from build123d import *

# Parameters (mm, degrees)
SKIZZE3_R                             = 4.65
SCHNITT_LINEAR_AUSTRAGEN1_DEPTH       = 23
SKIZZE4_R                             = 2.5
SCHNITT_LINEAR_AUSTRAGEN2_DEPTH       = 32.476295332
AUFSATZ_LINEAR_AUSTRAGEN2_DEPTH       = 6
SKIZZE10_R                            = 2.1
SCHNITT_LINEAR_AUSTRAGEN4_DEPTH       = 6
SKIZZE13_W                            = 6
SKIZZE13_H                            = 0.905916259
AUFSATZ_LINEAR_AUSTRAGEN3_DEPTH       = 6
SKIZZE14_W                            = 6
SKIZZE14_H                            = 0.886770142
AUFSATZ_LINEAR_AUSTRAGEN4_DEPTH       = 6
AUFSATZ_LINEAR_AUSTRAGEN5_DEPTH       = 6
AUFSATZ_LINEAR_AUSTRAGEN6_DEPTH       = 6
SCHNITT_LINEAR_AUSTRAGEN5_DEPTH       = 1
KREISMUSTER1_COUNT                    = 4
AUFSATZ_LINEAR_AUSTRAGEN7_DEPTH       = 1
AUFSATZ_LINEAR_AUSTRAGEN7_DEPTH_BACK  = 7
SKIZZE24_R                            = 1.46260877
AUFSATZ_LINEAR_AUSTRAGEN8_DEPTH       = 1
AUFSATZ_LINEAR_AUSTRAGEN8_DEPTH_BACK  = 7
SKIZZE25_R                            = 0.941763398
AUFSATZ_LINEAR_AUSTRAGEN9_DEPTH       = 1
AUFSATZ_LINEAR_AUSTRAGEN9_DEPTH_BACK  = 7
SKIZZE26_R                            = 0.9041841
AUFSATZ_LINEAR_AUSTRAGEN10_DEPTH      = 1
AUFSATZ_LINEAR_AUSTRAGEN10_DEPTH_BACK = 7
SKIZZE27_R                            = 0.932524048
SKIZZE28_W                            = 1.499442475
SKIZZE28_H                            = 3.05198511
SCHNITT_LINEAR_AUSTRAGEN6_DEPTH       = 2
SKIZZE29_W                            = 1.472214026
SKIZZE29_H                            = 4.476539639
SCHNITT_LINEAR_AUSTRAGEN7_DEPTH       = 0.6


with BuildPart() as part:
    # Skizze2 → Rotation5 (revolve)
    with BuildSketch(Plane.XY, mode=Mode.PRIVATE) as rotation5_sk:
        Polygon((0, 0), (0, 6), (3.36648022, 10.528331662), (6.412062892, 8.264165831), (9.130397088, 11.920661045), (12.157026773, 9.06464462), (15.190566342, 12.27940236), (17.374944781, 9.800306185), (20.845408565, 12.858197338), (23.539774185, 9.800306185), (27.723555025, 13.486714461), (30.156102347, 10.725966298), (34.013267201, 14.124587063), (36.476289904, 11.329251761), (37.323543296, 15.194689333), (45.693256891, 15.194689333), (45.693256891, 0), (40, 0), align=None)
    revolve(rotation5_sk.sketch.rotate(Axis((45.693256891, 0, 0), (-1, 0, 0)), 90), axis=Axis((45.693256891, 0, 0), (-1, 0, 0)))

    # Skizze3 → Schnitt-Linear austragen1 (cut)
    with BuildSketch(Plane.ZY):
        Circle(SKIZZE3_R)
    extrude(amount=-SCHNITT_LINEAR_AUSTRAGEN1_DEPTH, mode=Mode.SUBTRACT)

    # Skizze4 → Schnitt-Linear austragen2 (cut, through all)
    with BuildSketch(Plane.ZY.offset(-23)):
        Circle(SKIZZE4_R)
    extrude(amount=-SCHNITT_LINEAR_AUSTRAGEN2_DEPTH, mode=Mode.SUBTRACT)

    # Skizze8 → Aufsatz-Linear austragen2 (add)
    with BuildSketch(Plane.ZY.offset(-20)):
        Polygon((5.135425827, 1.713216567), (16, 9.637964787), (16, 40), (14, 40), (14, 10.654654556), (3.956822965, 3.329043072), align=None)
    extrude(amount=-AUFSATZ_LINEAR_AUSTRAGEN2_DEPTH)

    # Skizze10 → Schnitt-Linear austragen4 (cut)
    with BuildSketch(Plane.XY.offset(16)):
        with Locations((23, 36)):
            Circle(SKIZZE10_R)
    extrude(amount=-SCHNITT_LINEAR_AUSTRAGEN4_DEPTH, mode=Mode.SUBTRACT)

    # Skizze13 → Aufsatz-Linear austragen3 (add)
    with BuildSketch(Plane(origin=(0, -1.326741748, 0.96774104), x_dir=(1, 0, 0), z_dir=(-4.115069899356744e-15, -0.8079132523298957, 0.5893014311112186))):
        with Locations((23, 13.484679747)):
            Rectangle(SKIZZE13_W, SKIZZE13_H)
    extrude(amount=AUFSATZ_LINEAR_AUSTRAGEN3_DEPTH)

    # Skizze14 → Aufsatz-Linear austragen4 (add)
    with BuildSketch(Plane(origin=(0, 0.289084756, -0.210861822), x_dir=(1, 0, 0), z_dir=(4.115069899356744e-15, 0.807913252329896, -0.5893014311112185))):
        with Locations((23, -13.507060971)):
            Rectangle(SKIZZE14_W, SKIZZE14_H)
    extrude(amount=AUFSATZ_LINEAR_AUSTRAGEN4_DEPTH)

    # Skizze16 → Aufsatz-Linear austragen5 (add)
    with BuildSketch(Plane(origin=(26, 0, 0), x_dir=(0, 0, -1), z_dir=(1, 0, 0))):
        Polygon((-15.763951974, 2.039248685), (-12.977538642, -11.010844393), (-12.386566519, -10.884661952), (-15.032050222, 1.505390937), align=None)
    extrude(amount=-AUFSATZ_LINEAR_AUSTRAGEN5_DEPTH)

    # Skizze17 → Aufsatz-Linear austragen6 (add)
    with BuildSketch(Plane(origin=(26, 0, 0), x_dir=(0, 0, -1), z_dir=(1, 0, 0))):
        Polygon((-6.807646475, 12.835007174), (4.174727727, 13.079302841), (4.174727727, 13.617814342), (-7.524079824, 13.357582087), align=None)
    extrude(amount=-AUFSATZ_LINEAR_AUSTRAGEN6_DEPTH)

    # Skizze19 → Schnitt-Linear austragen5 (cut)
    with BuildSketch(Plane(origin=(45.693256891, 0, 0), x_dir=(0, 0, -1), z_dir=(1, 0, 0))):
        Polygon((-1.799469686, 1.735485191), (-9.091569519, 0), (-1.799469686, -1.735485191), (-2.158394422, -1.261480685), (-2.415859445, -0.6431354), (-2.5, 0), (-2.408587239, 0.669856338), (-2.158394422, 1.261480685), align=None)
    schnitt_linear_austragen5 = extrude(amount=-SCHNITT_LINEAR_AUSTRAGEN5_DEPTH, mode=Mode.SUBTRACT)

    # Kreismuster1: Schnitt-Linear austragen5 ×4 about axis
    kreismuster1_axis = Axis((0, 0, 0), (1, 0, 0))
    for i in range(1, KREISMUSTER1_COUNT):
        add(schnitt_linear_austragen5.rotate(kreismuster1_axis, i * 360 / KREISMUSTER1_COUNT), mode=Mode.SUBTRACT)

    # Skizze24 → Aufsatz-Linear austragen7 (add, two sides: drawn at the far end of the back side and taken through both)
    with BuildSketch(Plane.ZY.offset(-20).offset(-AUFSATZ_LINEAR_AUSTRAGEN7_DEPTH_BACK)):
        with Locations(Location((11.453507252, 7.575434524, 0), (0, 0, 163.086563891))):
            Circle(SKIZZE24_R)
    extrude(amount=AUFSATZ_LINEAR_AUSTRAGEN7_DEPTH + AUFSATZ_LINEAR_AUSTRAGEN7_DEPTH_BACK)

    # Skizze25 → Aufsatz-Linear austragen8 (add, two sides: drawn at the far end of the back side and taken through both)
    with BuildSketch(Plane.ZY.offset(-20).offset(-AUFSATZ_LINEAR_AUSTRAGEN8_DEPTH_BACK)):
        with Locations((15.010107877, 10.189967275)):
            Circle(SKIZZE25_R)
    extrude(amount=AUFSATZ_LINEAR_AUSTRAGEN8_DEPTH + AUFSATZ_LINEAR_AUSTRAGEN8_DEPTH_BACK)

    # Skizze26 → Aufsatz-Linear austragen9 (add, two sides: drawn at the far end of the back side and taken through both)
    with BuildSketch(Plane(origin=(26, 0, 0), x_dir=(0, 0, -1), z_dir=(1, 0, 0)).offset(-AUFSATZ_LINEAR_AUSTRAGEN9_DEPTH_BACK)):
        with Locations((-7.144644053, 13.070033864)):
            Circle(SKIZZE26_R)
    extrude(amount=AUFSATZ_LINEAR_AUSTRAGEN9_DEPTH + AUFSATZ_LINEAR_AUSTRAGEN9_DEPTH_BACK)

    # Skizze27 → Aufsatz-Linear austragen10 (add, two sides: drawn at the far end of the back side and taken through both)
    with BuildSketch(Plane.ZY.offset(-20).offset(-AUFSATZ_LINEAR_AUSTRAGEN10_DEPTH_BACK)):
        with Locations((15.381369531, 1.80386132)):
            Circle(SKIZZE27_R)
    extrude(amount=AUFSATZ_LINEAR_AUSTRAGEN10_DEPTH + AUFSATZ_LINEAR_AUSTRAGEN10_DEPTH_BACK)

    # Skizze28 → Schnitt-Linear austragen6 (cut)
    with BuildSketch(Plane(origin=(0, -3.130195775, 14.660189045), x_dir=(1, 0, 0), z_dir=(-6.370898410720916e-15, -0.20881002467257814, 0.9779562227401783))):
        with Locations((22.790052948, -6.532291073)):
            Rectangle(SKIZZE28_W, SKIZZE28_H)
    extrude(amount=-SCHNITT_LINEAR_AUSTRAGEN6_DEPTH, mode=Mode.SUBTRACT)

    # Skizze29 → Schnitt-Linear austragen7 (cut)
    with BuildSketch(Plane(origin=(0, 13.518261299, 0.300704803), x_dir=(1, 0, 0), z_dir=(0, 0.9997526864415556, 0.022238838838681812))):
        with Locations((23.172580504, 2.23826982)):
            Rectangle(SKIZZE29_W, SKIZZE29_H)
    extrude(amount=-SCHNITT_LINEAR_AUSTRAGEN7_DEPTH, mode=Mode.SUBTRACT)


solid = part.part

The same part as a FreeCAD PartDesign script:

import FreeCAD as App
import Part
import Sketcher

V = App.Vector


def add_polygon(sketch, points):
    """Adds a closed chain of lines whose ends are joined by coincident constraints."""
    first, n = sketch.GeometryCount, len(points)
    for a, b in zip(points, points[1:] + points[:1]):
        sketch.addGeometry(Part.LineSegment(App.Vector(*a, 0), App.Vector(*b, 0)), False)
    for i in range(n):
        sketch.addConstraint(Sketcher.Constraint("Coincident", first + i, 2, first + (i + 1) % n, 1))

doc = App.newDocument("Part")
body = doc.addObject("PartDesign::Body", "Body")

# Sketch on XY plane
sketch1 = doc.addObject("Sketcher::SketchObject", "Sketch")
body.addObject(sketch1)
sketch1.AttachmentSupport = (doc.XY_Plane, [""])
sketch1.MapMode = "FlatFace"
add_polygon(sketch1, [(0, 6), (0, 0), (45.7, 0), (45.7, 15.2), (37.3, 15.2), (36.5, 11.3), (34, 14.1), (30.2, 10.7), (27.7, 13.5), (23.5, 9.8), (20.8, 12.9), (17.4, 9.8), (15.2, 12.3), (12.2, 9.1), (9.1, 11.9), (6.4, 8.3), (3.4, 10.5)])  # lines 0-16
sketch1.addConstraint([
    Sketcher.Constraint("Vertical", 0),
    Sketcher.Constraint("Horizontal", 1),
    Sketcher.Constraint("Vertical", 2),
    Sketcher.Constraint("Horizontal", 3),
    Sketcher.Constraint("Coincident", 0, 2, -1, 1),
    Sketcher.Constraint("Perpendicular", 5, 6),
    Sketcher.Constraint("Perpendicular", 6, 7),
    Sketcher.Constraint("Perpendicular", 7, 8),
    Sketcher.Constraint("Perpendicular", 8, 9),
    Sketcher.Constraint("Perpendicular", 9, 10),
    Sketcher.Constraint("Perpendicular", 10, 11),
    Sketcher.Constraint("Perpendicular", 12, 13),
    Sketcher.Constraint("Perpendicular", 14, 15),
    Sketcher.Constraint("Perpendicular", 15, 16),
    Sketcher.Constraint("Horizontal", 8, 2, 10, 2),
    Sketcher.Constraint("DistanceY", 0, 2, 0, 1, 6.0),
    Sketcher.Constraint("Distance", 15, 3.794999),
    Sketcher.Constraint("Distance", 4, 3.957202),
    Sketcher.Constraint("DistanceY", 2, 1, 2, 2, 15.194689),
    Sketcher.Constraint("DistanceX", 7, 2, 2, 2, 17.969702),
    Sketcher.Constraint("Distance", 5, 3.725638),
    Sketcher.Constraint("Distance", 6, 5.14085),
    Sketcher.Constraint("Distance", 7, 3.67954),
    Sketcher.Constraint("Distance", 12, 4.420071),
    Sketcher.Constraint("Distance", 13, 4.161408),
    Sketcher.Constraint("DistanceX", 1, 1, 1, 2, 45.693257),
    Sketcher.Constraint("DistanceX", 3, 2, 3, 1, 8.369714),
    Sketcher.Constraint("DistanceX", -1, 1, 4, 2, 36.47629),
    Sketcher.Constraint("DistanceX", -1, 1, 9, 2, 20.845409),
    Sketcher.Constraint("DistanceY", -1, 1, 13, 2, 11.920661),
    Sketcher.Constraint("DistanceX", -1, 1, 15, 2, 3.36648),
    Sketcher.Constraint("DistanceY", -1, 1, 15, 2, 10.528332),
    Sketcher.Constraint("DistanceX", 8, 2, 7, 2, 4.183781),
])
revolution = doc.addObject("PartDesign::Revolution", "Revolution")
body.addObject(revolution)
revolution.Profile = sketch1
revolution.ReferenceAxis = (sketch1, ["H_Axis"])
revolution.Angle = 360

# Sketch on YZ plane
sketch2 = doc.addObject("Sketcher::SketchObject", "Sketch001")
body.addObject(sketch2)
sketch2.AttachmentSupport = (doc.YZ_Plane, [""])
sketch2.MapMode = "FlatFace"
sketch2.addGeometry(Part.Circle(V(0, 0, 0), V(0, 0, 1), 4.7), False)
sketch2.addConstraint([
    Sketcher.Constraint("Coincident", 0, 3, -1, 1),
    Sketcher.Constraint("Diameter", 0, 9.3),
])
pocket1 = doc.addObject("PartDesign::Pocket", "Pocket")
body.addObject(pocket1)
pocket1.Profile = sketch2
pocket1.Length = 23
pocket1.Reversed = True

# Sketch on YZ plane
sketch3 = doc.addObject("Sketcher::SketchObject", "Sketch002")
body.addObject(sketch3)
sketch3.AttachmentSupport = (doc.YZ_Plane, [""])
sketch3.MapMode = "FlatFace"
sketch3.AttachmentOffset = App.Placement(V(0, 0, 23), App.Rotation())
sketch3.addGeometry(Part.Circle(V(0, 0, 0), V(0, 0, 1), 2.5), False)
sketch3.addConstraint([
    Sketcher.Constraint("Coincident", 0, 3, -1, 1),
    Sketcher.Constraint("Diameter", 0, 5.0),
])
pocket2 = doc.addObject("PartDesign::Pocket", "Pocket001")
body.addObject(pocket2)
pocket2.Profile = sketch3
pocket2.Type = "ThroughAll"
pocket2.Reversed = True

# Sketch on YZ plane
sketch4 = doc.addObject("Sketcher::SketchObject", "Sketch003")
body.addObject(sketch4)
sketch4.AttachmentSupport = (doc.YZ_Plane, [""])
sketch4.MapMode = "FlatFace"
sketch4.AttachmentOffset = App.Placement(V(0, 0, 20), App.Rotation())
add_polygon(sketch4, [(1.7, 5.1), (9.6, 16), (40, 16), (40, 14), (10.7, 14), (3.3, 4)])  # lines 0-5
sketch4.addConstraint([
    Sketcher.Constraint("Horizontal", 1),
    Sketcher.Constraint("Vertical", 2),
    Sketcher.Constraint("Horizontal", 3),
    Sketcher.Constraint("Parallel", 0, 4),
    Sketcher.Constraint("Perpendicular", 4, 5),
    Sketcher.Constraint("DistanceY", 2, 2, 2, 1, 2.0),
    Sketcher.Constraint("Distance", 5, 2.0),
    Sketcher.Constraint("DistanceY", -1, 1, 0, 2, 16.0),
    Sketcher.Constraint("DistanceX", -1, 1, 1, 2, 40.0),
    Sketcher.Constraint("Distance", 0, 13.447699),
    Sketcher.Constraint("Distance", 4, 12.431009),
    Sketcher.Constraint("DistanceX", 1, 1, 1, 2, 30.362035),
])
pad1 = doc.addObject("PartDesign::Pad", "Pad")
body.addObject(pad1)
pad1.Profile = sketch4
pad1.Length = 6

# Sketch on XY plane
sketch5 = doc.addObject("Sketcher::SketchObject", "Sketch004")
body.addObject(sketch5)
sketch5.AttachmentSupport = (doc.XY_Plane, [""])
sketch5.MapMode = "FlatFace"
sketch5.AttachmentOffset = App.Placement(V(0, 0, 16), App.Rotation())
sketch5.addGeometry(Part.Circle(V(23, 36, 0), V(0, 0, 1), 2.1), False)
sketch5.addConstraint([
    Sketcher.Constraint("Diameter", 0, 4.2),
    Sketcher.Constraint("DistanceX", -1, 1, 0, 3, 23.0),
    Sketcher.Constraint("DistanceY", -1, 1, 0, 3, 36.0),
])
pocket3 = doc.addObject("PartDesign::Pocket", "Pocket002")
body.addObject(pocket3)
pocket3.Profile = sketch5
pocket3.Length = 6

# Sketch on an angled plane
sketch6 = doc.addObject("Sketcher::SketchObject", "Sketch005")
body.addObject(sketch6)
sketch6.Placement = App.Placement(V(0, -1.326742, 0.967741), App.Rotation(V(1, 0, 0), V(0, 0.589301431, 0.807913252), V(0, -0.807913252, 0.589301431), "ZXY"))
add_polygon(sketch6, [(20, 13.9), (20, 13), (26, 13), (26, 13.9)])  # lines 0-3
sketch6.addConstraint([
    Sketcher.Constraint("Vertical", 0),
    Sketcher.Constraint("Horizontal", 1),
    Sketcher.Constraint("Vertical", 2),
    Sketcher.Constraint("Horizontal", 3),
    Sketcher.Constraint("DistanceX", 1, 1, 1, 2, 6.0),
    Sketcher.Constraint("DistanceX", -1, 1, 0, 2, 20.0),
    Sketcher.Constraint("DistanceY", 0, 2, 0, 1, 0.905916),
    Sketcher.Constraint("DistanceY", -1, 1, 0, 2, 13.031722),
])
pad2 = doc.addObject("PartDesign::Pad", "Pad001")
body.addObject(pad2)
pad2.Profile = sketch6
pad2.Length = 6

# Sketch on an angled plane
sketch7 = doc.addObject("Sketcher::SketchObject", "Sketch006")
body.addObject(sketch7)
sketch7.Placement = App.Placement(V(0, 0.289085, -0.210862), App.Rotation(V(1, 0, 0), V(0, -0.589301431, -0.807913252), V(0, 0.807913252, -0.589301431), "ZXY"))
add_polygon(sketch7, [(20, -13.1), (20, -14), (26, -14), (26, -13.1)])  # lines 0-3
sketch7.addConstraint([
    Sketcher.Constraint("Vertical", 0),
    Sketcher.Constraint("Horizontal", 1),
    Sketcher.Constraint("Vertical", 2),
    Sketcher.Constraint("Horizontal", 3),
    Sketcher.Constraint("DistanceX", 1, 1, 1, 2, 6.0),
    Sketcher.Constraint("DistanceX", -1, 1, 0, 2, 20.0),
    Sketcher.Constraint("DistanceY", 0, 2, 0, 1, 0.88677),
    Sketcher.Constraint("DistanceY", 0, 2, -1, 1, 13.950446),
])
pad3 = doc.addObject("PartDesign::Pad", "Pad002")
body.addObject(pad3)
pad3.Profile = sketch7
pad3.Length = 6

# Sketch on YZ plane
sketch8 = doc.addObject("Sketcher::SketchObject", "Sketch007")
body.addObject(sketch8)
sketch8.AttachmentSupport = (doc.YZ_Plane, [""])
sketch8.MapMode = "FlatFace"
sketch8.AttachmentOffset = App.Placement(V(0, 0, 26), App.Rotation())
add_polygon(sketch8, [(2, 15.8), (-11, 13), (-10.9, 12.4), (1.5, 15)])  # lines 0-3
sketch8.addConstraint([
    Sketcher.Constraint("Perpendicular", 0, 1),
    Sketcher.Constraint("Perpendicular", 1, 2),
    Sketcher.Constraint("DistanceY", 2, 2, 3, 2, 0.731902),
    Sketcher.Constraint("Distance", 0, 13.344251),
    Sketcher.Constraint("DistanceY", -1, 1, 0, 2, 12.977539),
    Sketcher.Constraint("DistanceX", 1, 2, -1, 1, 10.884662),
    Sketcher.Constraint("DistanceX", -1, 1, 2, 2, 1.505391),
    Sketcher.Constraint("DistanceY", -1, 1, 2, 2, 15.03205),
])
pad4 = doc.addObject("PartDesign::Pad", "Pad003")
body.addObject(pad4)
pad4.Profile = sketch8
pad4.Length = 6
pad4.Reversed = True

# Sketch on YZ plane
sketch9 = doc.addObject("Sketcher::SketchObject", "Sketch008")
body.addObject(sketch9)
sketch9.AttachmentSupport = (doc.YZ_Plane, [""])
sketch9.MapMode = "FlatFace"
sketch9.AttachmentOffset = App.Placement(V(0, 0, 26), App.Rotation())
add_polygon(sketch9, [(12.835007, 6.807646), (13.079303, -4.174728), (13.617814, -4.174728), (13.357582, 7.52408)])  # lines 0-3
sketch9.addConstraint([
    Sketcher.Constraint("Horizontal", 1),
    Sketcher.Constraint("Parallel", 0, 2),
    Sketcher.Constraint("Distance", 2, 11.701702),
    Sketcher.Constraint("DistanceX", 1, 1, 1, 2, 0.538512),
    Sketcher.Constraint("Distance", 0, 10.985091),
    Sketcher.Constraint("Distance", 3, 0.88677),
    Sketcher.Constraint("DistanceY", -1, 1, 2, 2, 7.52408),
    Sketcher.Constraint("DistanceX", -1, 1, 0, 2, 13.079303),
])
pad5 = doc.addObject("PartDesign::Pad", "Pad004")
body.addObject(pad5)
pad5.Profile = sketch9
pad5.Length = 6
pad5.Reversed = True

# Sketch on YZ plane
sketch10 = doc.addObject("Sketcher::SketchObject", "Sketch009")
body.addObject(sketch10)
sketch10.AttachmentSupport = (doc.YZ_Plane, [""])
sketch10.MapMode = "FlatFace"
sketch10.AttachmentOffset = App.Placement(V(0, 0, 45.693257), App.Rotation())
add_polygon(sketch10, [(1.7, 1.8), (0, 9.1), (-1.7, 1.8), (-1.3, 2.2), (-0.6, 2.4), (0, 2.5), (0.7, 2.4), (1.3, 2.2)])  # lines 0-7
sketch10.addConstraint([
    Sketcher.Constraint("Symmetric", 2, 2, 6, 2, -2),
    Sketcher.Constraint("Symmetric", 1, 2, 7, 2, -2),
    Sketcher.Constraint("PointOnObject", 0, 2, -2),
    Sketcher.Constraint("PointOnObject", 4, 2, -2),
    Sketcher.Constraint("DistanceY", -1, 1, 4, 2, 2.5),
    Sketcher.Constraint("DistanceY", 1, 2, 0, 2, 7.2921),
    Sketcher.Constraint("Distance", 6, 0.642352),
    Sketcher.Constraint("DistanceY", -1, 1, 0, 2, 9.09157),
    Sketcher.Constraint("DistanceX", 2, 2, -1, 1, 1.261481),
    Sketcher.Constraint("DistanceY", -1, 1, 3, 2, 2.415859),
    Sketcher.Constraint("DistanceX", 1, 2, 3, 2, 1.09235),
    Sketcher.Constraint("DistanceX", 3, 2, 5, 2, 1.312992),
    Sketcher.Constraint("DistanceX", 5, 2, 7, 2, 1.065629),
    Sketcher.Constraint("Distance", 2, 0.594565),
])
pocket4 = doc.addObject("PartDesign::Pocket", "Pocket003")
body.addObject(pocket4)
pocket4.Profile = sketch10
pocket4.Length = 1
doc.recompute()

polarpattern = doc.addObject("PartDesign::PolarPattern", "PolarPattern")
body.addObject(polarpattern)
polarpattern.Originals = [pocket4]
polarpattern.Axis = (doc.X_Axis, [""])
polarpattern.Angle = 360
polarpattern.Occurrences = 4
body.Tip = polarpattern

# Sketch on YZ plane
sketch11 = doc.addObject("Sketcher::SketchObject", "Sketch010")
body.addObject(sketch11)
sketch11.AttachmentSupport = (doc.YZ_Plane, [""])
sketch11.MapMode = "FlatFace"
sketch11.AttachmentOffset = App.Placement(V(0, 0, 20), App.Rotation())
sketch11.addGeometry(Part.Circle(V(7.6, 11.5, 0), V(0, 0, 1), 1.5), False)
sketch11.addConstraint([
    Sketcher.Constraint("Diameter", 0, 2.925218),
    Sketcher.Constraint("DistanceX", -1, 1, 0, 3, 7.575435),
    Sketcher.Constraint("DistanceY", -1, 1, 0, 3, 11.453507),
])
pad6 = doc.addObject("PartDesign::Pad", "Pad005")
body.addObject(pad6)
pad6.Profile = sketch11
pad6.Type = "TwoLengths"
pad6.Length = 1
pad6.Length2 = 7
pad6.Reversed = True

# Sketch on YZ plane
sketch12 = doc.addObject("Sketcher::SketchObject", "Sketch011")
body.addObject(sketch12)
sketch12.AttachmentSupport = (doc.YZ_Plane, [""])
sketch12.MapMode = "FlatFace"
sketch12.AttachmentOffset = App.Placement(V(0, 0, 20), App.Rotation())
sketch12.addGeometry(Part.Circle(V(10.2, 15, 0), V(0, 0, 1), 0.9), False)
sketch12.addConstraint([
    Sketcher.Constraint("Diameter", 0, 1.883527),
    Sketcher.Constraint("DistanceX", -1, 1, 0, 3, 10.189967),
    Sketcher.Constraint("DistanceY", -1, 1, 0, 3, 15.010108),
])
pad7 = doc.addObject("PartDesign::Pad", "Pad006")
body.addObject(pad7)
pad7.Profile = sketch12
pad7.Type = "TwoLengths"
pad7.Length = 1
pad7.Length2 = 7
pad7.Reversed = True

# Sketch on YZ plane
sketch13 = doc.addObject("Sketcher::SketchObject", "Sketch012")
body.addObject(sketch13)
sketch13.AttachmentSupport = (doc.YZ_Plane, [""])
sketch13.MapMode = "FlatFace"
sketch13.AttachmentOffset = App.Placement(V(0, 0, 26), App.Rotation())
sketch13.addGeometry(Part.Circle(V(13.1, 7.1, 0), V(0, 0, 1), 0.9), False)
sketch13.addConstraint([
    Sketcher.Constraint("Diameter", 0, 1.808368),
    Sketcher.Constraint("DistanceX", -1, 1, 0, 3, 13.070034),
    Sketcher.Constraint("DistanceY", -1, 1, 0, 3, 7.144644),
])
pad8 = doc.addObject("PartDesign::Pad", "Pad007")
body.addObject(pad8)
pad8.Profile = sketch13
pad8.Type = "TwoLengths"
pad8.Length = 1
pad8.Length2 = 7

# Sketch on YZ plane
sketch14 = doc.addObject("Sketcher::SketchObject", "Sketch013")
body.addObject(sketch14)
sketch14.AttachmentSupport = (doc.YZ_Plane, [""])
sketch14.MapMode = "FlatFace"
sketch14.AttachmentOffset = App.Placement(V(0, 0, 20), App.Rotation())
sketch14.addGeometry(Part.Circle(V(1.8, 15.4, 0), V(0, 0, 1), 0.9), False)
sketch14.addConstraint([
    Sketcher.Constraint("Diameter", 0, 1.865048),
    Sketcher.Constraint("DistanceX", -1, 1, 0, 3, 1.803861),
    Sketcher.Constraint("DistanceY", -1, 1, 0, 3, 15.38137),
])
pad9 = doc.addObject("PartDesign::Pad", "Pad008")
body.addObject(pad9)
pad9.Profile = sketch14
pad9.Type = "TwoLengths"
pad9.Length = 1
pad9.Length2 = 7
pad9.Reversed = True

# Sketch on an angled plane
sketch15 = doc.addObject("Sketcher::SketchObject", "Sketch014")
body.addObject(sketch15)
sketch15.Placement = App.Placement(V(0, -3.130196, 14.660189), App.Rotation(V(1, 0, 0), V(0, 0.977956223, 0.208810025), V(0, -0.208810025, 0.977956223), "ZXY"))
add_polygon(sketch15, [(22, -5), (22, -8.1), (23.5, -8.1), (23.5, -5)])  # lines 0-3
sketch15.addConstraint([
    Sketcher.Constraint("Vertical", 0),
    Sketcher.Constraint("Horizontal", 1),
    Sketcher.Constraint("Vertical", 2),
    Sketcher.Constraint("Horizontal", 3),
    Sketcher.Constraint("DistanceY", 2, 2, -1, 1, 5.006299),
    Sketcher.Constraint("DistanceX", 1, 1, 1, 2, 1.499442),
    Sketcher.Constraint("DistanceY", 0, 2, 0, 1, 3.051985),
    Sketcher.Constraint("DistanceX", -1, 1, 0, 2, 22.040332),
])
pocket5 = doc.addObject("PartDesign::Pocket", "Pocket004")
body.addObject(pocket5)
pocket5.Profile = sketch15
pocket5.Length = 2

# Sketch on an angled plane
sketch16 = doc.addObject("Sketcher::SketchObject", "Sketch015")
body.addObject(sketch16)
sketch16.Placement = App.Placement(V(0, 13.518261, 0.300705), App.Rotation(V(1, 0, 0), V(0, 0.022238839, -0.999752686), V(0, 0.999752686, 0.022238839), "ZXY"))
add_polygon(sketch16, [(22.4, 4.5), (22.4, 0), (23.9, 0), (23.9, 4.5)])  # lines 0-3
sketch16.addConstraint([
    Sketcher.Constraint("Vertical", 0),
    Sketcher.Constraint("Horizontal", 1),
    Sketcher.Constraint("Vertical", 2),
    Sketcher.Constraint("Horizontal", 3),
    Sketcher.Constraint("PointOnObject", 0, 2, -1),
    Sketcher.Constraint("DistanceY", 0, 2, 0, 1, 4.47654),
    Sketcher.Constraint("DistanceX", 1, 1, 1, 2, 1.472214),
    Sketcher.Constraint("DistanceX", -1, 1, 0, 2, 22.436473),
])
pocket6 = doc.addObject("PartDesign::Pocket", "Pocket005")
body.addObject(pocket6)
pocket6.Profile = sketch16
pocket6.Length = 0.6

doc.recompute()
